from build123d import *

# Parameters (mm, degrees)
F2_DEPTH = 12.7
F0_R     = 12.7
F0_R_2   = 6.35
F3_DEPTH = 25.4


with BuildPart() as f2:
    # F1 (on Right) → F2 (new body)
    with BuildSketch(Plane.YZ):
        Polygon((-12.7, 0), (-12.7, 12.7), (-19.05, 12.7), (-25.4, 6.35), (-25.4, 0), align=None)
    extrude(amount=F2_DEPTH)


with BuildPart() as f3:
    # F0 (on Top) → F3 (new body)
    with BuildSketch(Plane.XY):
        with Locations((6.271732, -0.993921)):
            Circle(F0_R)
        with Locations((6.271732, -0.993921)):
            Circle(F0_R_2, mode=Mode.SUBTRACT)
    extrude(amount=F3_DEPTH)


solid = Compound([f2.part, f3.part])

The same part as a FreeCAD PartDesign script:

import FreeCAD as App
import Part
import Sketcher
from FreeCAD import Vector
Q = App.Units.Quantity

doc = App.newDocument("Part")
params = doc.addObject("Spreadsheet::Sheet", "Params")
for row, (alias, value) in enumerate([
    ("sketch1_width", "0.5 in"),
    ("sketch1_width2", "0.25 in"),
    ("pad1_length", "0.5 in"),
    ("sketch2_diameter", "1 in"),
    ("sketch2_diameter2", "0.5 in"),
    ("pad2_length", "1 in"),
], start=1):
    params.set(f"A{row}", alias)
    params.set(f"B{row}", "=" + value)
    params.setAlias(f"B{row}", alias)

body = doc.addObject("PartDesign::Body", "Body")

sketch1 = body.newObject("Sketcher::SketchObject", "Sketch")
sketch1.AttachmentSupport = (doc.getObject("YZ_Plane"), [""])
sketch1.MapMode = "FlatFace"
sketch1.addGeometry(Part.LineSegment(Vector(-13, 0, 0), Vector(-13, 13, 0)), False)
sketch1.addGeometry(Part.LineSegment(Vector(-13, 13, 0), Vector(-19, 13, 0)), False)
sketch1.addGeometry(Part.LineSegment(Vector(-19, 13, 0), Vector(-25, 6, 0)), False)
sketch1.addGeometry(Part.LineSegment(Vector(-25, 6, 0), Vector(-25, 0, 0)), False)
sketch1.addGeometry(Part.LineSegment(Vector(-25, 0, 0), Vector(-13, 0, 0)), False)
sketch1.addConstraint(Sketcher.Constraint("Coincident", 0, 2, 1, 1))
sketch1.addConstraint(Sketcher.Constraint("Coincident", 1, 2, 2, 1))
sketch1.addConstraint(Sketcher.Constraint("Coincident", 2, 2, 3, 1))
sketch1.addConstraint(Sketcher.Constraint("Coincident", 3, 2, 4, 1))
sketch1.addConstraint(Sketcher.Constraint("Coincident", 4, 2, 0, 1))
sketch1.addConstraint(Sketcher.Constraint("Vertical", 0))
sketch1.addConstraint(Sketcher.Constraint("Horizontal", 1))
sketch1.addConstraint(Sketcher.Constraint("Vertical", 3))
sketch1.addConstraint(Sketcher.Constraint("Horizontal", 4))
sketch1.addConstraint(Sketcher.Constraint("PointOnObject", 3, 2, -1))
sketch1.addConstraint(Sketcher.Constraint("Equal", 4, 0))
sketch1.addConstraint(Sketcher.Constraint("Equal", 1, 3))
sketch1.addConstraint(Sketcher.Constraint("DistanceX", 4, 1, 4, 2, Q("0.5 in")))
sketch1.addConstraint(Sketcher.Constraint("DistanceX", 2, 2, -1, 1, Q("1 in")))
sketch1.addConstraint(Sketcher.Constraint("DistanceX", 1, 2, 1, 1, Q("0.25 in")))
sketch1.setExpression("Constraints[12]", "Params.sketch1_width")
sketch1.setExpression("Constraints[14]", "Params.sketch1_width2")
pad1 = body.newObject("PartDesign::Pad", "Pad")
pad1.Profile = sketch1
pad1.setExpression("Length", "Params.pad1_length")
body2 = doc.addObject("PartDesign::Body", "Body001")

sketch2 = body2.newObject("Sketcher::SketchObject", "Sketch001")
sketch2.AttachmentSupport = (doc.getObject("XY_Plane001"), [""])
sketch2.MapMode = "FlatFace"
sketch2.addGeometry(Part.Circle(Vector(6, -1, 0), Vector(0, 0, 1), 13), False)
sketch2.addGeometry(Part.Circle(Vector(6, -1, 0), Vector(0, 0, 1), 6), False)
sketch2.addConstraint(Sketcher.Constraint("Coincident", 1, 3, 0, 3))
sketch2.addConstraint(Sketcher.Constraint("Diameter", 0, Q("1 in")))
sketch2.addConstraint(Sketcher.Constraint("Diameter", 1, Q("0.5 in")))
sketch2.addConstraint(Sketcher.Constraint("DistanceY", 0, 3, -1, 1, 0.993921))
sketch2.addConstraint(Sketcher.Constraint("DistanceX", -1, 1, 0, 3, 6.271732))
sketch2.setExpression("Constraints[1]", "Params.sketch2_diameter")
sketch2.setExpression("Constraints[2]", "Params.sketch2_diameter2")
pad2 = body2.newObject("PartDesign::Pad", "Pad001")
pad2.Profile = sketch2
pad2.setExpression("Length", "Params.pad2_length")

doc.recompute()
